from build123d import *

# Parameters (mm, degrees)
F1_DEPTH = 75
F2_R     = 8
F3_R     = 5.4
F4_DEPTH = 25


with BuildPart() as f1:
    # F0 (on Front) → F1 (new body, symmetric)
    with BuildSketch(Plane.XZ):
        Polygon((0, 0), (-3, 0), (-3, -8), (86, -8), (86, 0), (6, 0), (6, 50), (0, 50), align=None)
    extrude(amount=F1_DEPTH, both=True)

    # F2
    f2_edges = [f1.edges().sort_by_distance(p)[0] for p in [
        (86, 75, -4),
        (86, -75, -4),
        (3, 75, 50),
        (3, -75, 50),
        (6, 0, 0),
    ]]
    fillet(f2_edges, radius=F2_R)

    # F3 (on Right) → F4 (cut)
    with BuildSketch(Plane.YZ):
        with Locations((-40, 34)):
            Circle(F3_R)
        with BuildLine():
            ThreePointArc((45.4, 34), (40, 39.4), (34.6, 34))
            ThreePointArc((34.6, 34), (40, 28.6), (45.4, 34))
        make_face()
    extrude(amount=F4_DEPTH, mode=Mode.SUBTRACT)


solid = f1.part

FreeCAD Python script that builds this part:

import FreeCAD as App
import Part
import Sketcher


def edges_at(feature, points):
    """Names of the edges that pass closest to the given points."""
    edges = feature.Shape.Edges
    near = lambda p: min(range(len(edges)), key=lambda i: edges[i].distToShape(Part.Vertex(*p))[0])
    return sorted({f"Edge{near(p) + 1}" for p in points})

doc = App.newDocument("Part")
body = doc.addObject("PartDesign::Body", "Body")

sketch1 = doc.addObject("Sketcher::SketchObject", "Sketch")
body.addObject(sketch1)
sketch1.AttachmentSupport = (doc.XZ_Plane, [""])
sketch1.MapMode = "FlatFace"
sketch1.addGeometry([
    Part.LineSegment(App.Vector(0, 0, 0), App.Vector(-3, 0, 0)),
    Part.LineSegment(App.Vector(-3, 0, 0), App.Vector(-3, -8, 0)),
    Part.LineSegment(App.Vector(-3, -8, 0), App.Vector(86, -8, 0)),
    Part.LineSegment(App.Vector(86, -8, 0), App.Vector(86, 0, 0)),
    Part.LineSegment(App.Vector(86, 0, 0), App.Vector(6, 0, 0)),
    Part.LineSegment(App.Vector(6, 0, 0), App.Vector(6, 50, 0)),
    Part.LineSegment(App.Vector(6, 50, 0), App.Vector(0, 50, 0)),
    Part.LineSegment(App.Vector(0, 50, 0), App.Vector(0, 0, 0)),
], False)
sketch1.addConstraint([
    Sketcher.Constraint("Coincident", 0, 2, 1, 1),
    Sketcher.Constraint("Coincident", 1, 2, 2, 1),
    Sketcher.Constraint("Coincident", 2, 2, 3, 1),
    Sketcher.Constraint("Coincident", 3, 2, 4, 1),
    Sketcher.Constraint("Coincident", 4, 2, 5, 1),
    Sketcher.Constraint("Coincident", 5, 2, 6, 1),
    Sketcher.Constraint("Coincident", 6, 2, 7, 1),
    Sketcher.Constraint("Coincident", 7, 2, 0, 1),
    Sketcher.Constraint("Horizontal", 0),
    Sketcher.Constraint("Vertical", 1),
    Sketcher.Constraint("Horizontal", 2),
    Sketcher.Constraint("Vertical", 3),
    Sketcher.Constraint("Horizontal", 4),
    Sketcher.Constraint("Vertical", 5),
    Sketcher.Constraint("Horizontal", 6),
    Sketcher.Constraint("Vertical", 7),
    Sketcher.Constraint("Coincident", 7, 2, -1, 1),
    Sketcher.Constraint("PointOnObject", 3, 2, -1),
    Sketcher.Constraint("DistanceX", 0, 2, 0, 1, 3.0),
    Sketcher.Constraint("DistanceX", 2, 1, 2, 2, 89.0),
    Sketcher.Constraint("DistanceX", 4, 2, 4, 1, 80.0),
    Sketcher.Constraint("DistanceY", 1, 2, 1, 1, 8.0),
    Sketcher.Constraint("DistanceY", 5, 1, 5, 2, 50.0),
])
pad1 = doc.addObject("PartDesign::Pad", "Pad")
body.addObject(pad1)
pad1.Profile = sketch1
pad1.Length = 150
pad1.Midplane = True
doc.recompute()

fillet = doc.addObject("PartDesign::Fillet", "Fillet")
body.addObject(fillet)
fillet.Base = (pad1, edges_at(pad1, [
    (86, 75, -4),
    (86, -75, -4),
    (3, 75, 50),
    (3, -75, 50),
    (6, 0, 0),
]))
fillet.Radius = 8

sketch2 = doc.addObject("Sketcher::SketchObject", "Sketch001")
body.addObject(sketch2)
sketch2.AttachmentSupport = (doc.YZ_Plane, [""])
sketch2.MapMode = "FlatFace"
sketch2.addGeometry([
    Part.Circle(App.Vector(-40, 34, 0), App.Vector(0, 0, 1), 5),
    Part.Circle(App.Vector(40, 34, 0), App.Vector(0, 0, 1), 5),
], False)
sketch2.addConstraint([
    Sketcher.Constraint("Equal", 0, 1),
    Sketcher.Constraint("Symmetric", 0, 3, 1, 3, -2),
    Sketcher.Constraint("Diameter", 0, 10.8),
    Sketcher.Constraint("DistanceX", 0, 3, -1, 1, 40.0),
    Sketcher.Constraint("DistanceY", -1, 1, 0, 3, 34.0),
])
pocket1 = doc.addObject("PartDesign::Pocket", "Pocket")
body.addObject(pocket1)
pocket1.Profile = sketch2
pocket1.Length = 25
pocket1.Reversed = True

doc.recompute()
